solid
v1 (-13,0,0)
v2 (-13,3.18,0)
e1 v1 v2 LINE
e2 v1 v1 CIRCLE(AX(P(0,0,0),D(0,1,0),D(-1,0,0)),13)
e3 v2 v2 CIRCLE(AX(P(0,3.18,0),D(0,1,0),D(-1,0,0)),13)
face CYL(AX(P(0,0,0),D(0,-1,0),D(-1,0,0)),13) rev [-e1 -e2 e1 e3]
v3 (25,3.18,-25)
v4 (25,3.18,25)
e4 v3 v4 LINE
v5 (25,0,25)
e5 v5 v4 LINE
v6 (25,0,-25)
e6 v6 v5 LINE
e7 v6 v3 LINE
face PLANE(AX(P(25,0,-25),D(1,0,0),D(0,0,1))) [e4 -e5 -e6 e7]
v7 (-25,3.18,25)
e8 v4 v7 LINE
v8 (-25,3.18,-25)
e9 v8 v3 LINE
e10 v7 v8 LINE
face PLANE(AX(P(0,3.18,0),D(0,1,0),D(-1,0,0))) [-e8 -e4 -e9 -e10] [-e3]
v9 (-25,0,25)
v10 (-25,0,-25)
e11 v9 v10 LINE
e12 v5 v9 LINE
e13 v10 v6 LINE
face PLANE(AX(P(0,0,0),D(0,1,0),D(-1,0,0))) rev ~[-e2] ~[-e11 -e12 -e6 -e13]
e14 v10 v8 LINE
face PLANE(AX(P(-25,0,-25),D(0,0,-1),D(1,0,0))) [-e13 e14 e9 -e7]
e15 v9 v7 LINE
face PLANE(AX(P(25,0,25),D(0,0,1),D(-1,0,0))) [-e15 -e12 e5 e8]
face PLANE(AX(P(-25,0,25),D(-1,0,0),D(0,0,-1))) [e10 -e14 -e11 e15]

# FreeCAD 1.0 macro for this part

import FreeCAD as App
import Part
import Sketcher

V = App.Vector


def add_polygon(sketch, points):
    """Adds a closed chain of lines whose ends are joined by coincident constraints."""
    first, n = sketch.GeometryCount, len(points)
    for a, b in zip(points, points[1:] + points[:1]):
        sketch.addGeometry(Part.LineSegment(App.Vector(*a, 0), App.Vector(*b, 0)), False)
    for i in range(n):
        sketch.addConstraint(Sketcher.Constraint("Coincident", first + i, 2, first + (i + 1) % n, 1))

doc = App.newDocument("Part")
body = doc.addObject("PartDesign::Body", "Body")

sketch1 = body.newObject("Sketcher::SketchObject", "Sketch")
sketch1.AttachmentSupport = (doc.getObject("XZ_Plane"), [""])
sketch1.MapMode = "FlatFace"
add_polygon(sketch1, [(-25, 25), (25, 25), (25, -25), (-25, -25)])
sketch1.addGeometry(Part.Circle(V(0, 0, 0), V(0, 0, 1), 13), False)
sketch1.addConstraint([
    Sketcher.Constraint("Horizontal", 0),
    Sketcher.Constraint("Vertical", 1),
    Sketcher.Constraint("Horizontal", 2),
    Sketcher.Constraint("Vertical", 3),
    Sketcher.Constraint("Coincident", 4, 3, -1, 1),
    Sketcher.Constraint("Symmetric", 0, 2, 2, 2, -1, 1),
    Sketcher.Constraint("Equal", 2, 1),
    Sketcher.Constraint("Diameter", 4, 26.0),
    Sketcher.Constraint("DistanceX", 0, 1, 0, 2, 50.0),
])
pad1 = body.newObject("PartDesign::Pad", "Pad")
pad1.Profile = sketch1
pad1.Length = 3.18
pad1.Reversed = True

doc.recompute()
